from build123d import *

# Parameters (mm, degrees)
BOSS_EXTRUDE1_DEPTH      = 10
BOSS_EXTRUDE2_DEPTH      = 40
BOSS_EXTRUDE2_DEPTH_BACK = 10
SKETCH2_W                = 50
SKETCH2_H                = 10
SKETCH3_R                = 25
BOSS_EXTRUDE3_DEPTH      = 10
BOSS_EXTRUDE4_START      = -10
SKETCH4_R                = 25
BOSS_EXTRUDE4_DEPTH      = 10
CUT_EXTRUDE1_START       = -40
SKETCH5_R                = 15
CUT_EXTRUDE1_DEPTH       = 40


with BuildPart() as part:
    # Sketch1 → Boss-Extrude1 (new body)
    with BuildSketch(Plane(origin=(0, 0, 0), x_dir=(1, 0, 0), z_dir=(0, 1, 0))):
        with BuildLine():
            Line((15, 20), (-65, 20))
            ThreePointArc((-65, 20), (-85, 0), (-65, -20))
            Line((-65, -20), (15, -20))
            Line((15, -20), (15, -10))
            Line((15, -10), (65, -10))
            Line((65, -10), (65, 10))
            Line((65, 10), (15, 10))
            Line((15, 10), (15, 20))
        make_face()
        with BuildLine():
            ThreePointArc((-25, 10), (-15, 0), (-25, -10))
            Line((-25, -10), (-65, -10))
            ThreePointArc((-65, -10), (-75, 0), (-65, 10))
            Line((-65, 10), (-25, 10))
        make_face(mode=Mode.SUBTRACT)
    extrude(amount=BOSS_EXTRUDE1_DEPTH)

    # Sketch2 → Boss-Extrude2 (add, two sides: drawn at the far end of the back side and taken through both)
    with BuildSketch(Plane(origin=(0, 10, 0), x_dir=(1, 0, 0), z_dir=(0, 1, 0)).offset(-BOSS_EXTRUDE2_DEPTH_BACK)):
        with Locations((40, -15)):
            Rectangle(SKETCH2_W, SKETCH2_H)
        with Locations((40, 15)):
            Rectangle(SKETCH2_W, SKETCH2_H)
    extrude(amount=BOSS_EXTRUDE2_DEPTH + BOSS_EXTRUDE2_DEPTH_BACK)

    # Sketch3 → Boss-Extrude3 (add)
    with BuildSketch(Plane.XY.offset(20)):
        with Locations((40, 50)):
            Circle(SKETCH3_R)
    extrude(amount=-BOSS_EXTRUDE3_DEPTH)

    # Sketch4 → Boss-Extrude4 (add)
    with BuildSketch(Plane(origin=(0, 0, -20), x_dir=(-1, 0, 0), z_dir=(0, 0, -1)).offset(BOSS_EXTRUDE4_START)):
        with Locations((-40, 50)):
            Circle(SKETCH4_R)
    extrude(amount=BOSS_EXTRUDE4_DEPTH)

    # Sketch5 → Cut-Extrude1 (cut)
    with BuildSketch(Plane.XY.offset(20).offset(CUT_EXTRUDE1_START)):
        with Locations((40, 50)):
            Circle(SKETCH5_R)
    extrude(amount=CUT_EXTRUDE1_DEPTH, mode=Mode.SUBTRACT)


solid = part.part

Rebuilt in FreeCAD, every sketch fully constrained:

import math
import FreeCAD as App
import Part
import Sketcher
Q = App.Units.Quantity

doc = App.newDocument("Part")
body = doc.addObject("PartDesign::Body", "Body")

# Sketch on XZ plane
sketch1 = body.newObject("Sketcher::SketchObject", "Sketch")
sketch1.AttachmentSupport = (doc.getObject("XZ_Plane"), [""])
sketch1.MapMode = "FlatFace"
sketch1.addGeometry([
    Part.LineSegment(App.Vector(15, -20, 0), App.Vector(-65, -20, 0)),  # 0
    Part.ArcOfCircle(Part.Circle(App.Vector(-65, 0, 0), App.Vector(0, 0, 1), 20), math.radians(90), math.radians(270)),  # 1
    Part.LineSegment(App.Vector(-65, 20, 0), App.Vector(15, 20, 0)),  # 2
    Part.LineSegment(App.Vector(15, 20, 0), App.Vector(15, 10, 0)),  # 3
    Part.LineSegment(App.Vector(15, 10, 0), App.Vector(65, 10, 0)),  # 4
    Part.LineSegment(App.Vector(65, 10, 0), App.Vector(65, -10, 0)),  # 5
    Part.LineSegment(App.Vector(65, -10, 0), App.Vector(15, -10, 0)),  # 6
    Part.LineSegment(App.Vector(15, -10, 0), App.Vector(15, -20, 0)),  # 7
    Part.LineSegment(App.Vector(-65, -10, 0), App.Vector(-25, -10, 0)),  # 8
    Part.ArcOfCircle(Part.Circle(App.Vector(-25, 0, 0), App.Vector(0, 0, 1), 10), math.radians(-90), math.radians(90)),  # 9
    Part.LineSegment(App.Vector(-25, 10, 0), App.Vector(-65, 10, 0)),  # 10
    Part.ArcOfCircle(Part.Circle(App.Vector(-65, 0, 0), App.Vector(0, 0, 1), 10), math.radians(90), math.radians(270)),  # 11
], False)
sketch1.addConstraint([
    Sketcher.Constraint("Tangent", 0, 2, 1, 2),
    Sketcher.Constraint("Tangent", 1, 1, 2, 1),
    Sketcher.Constraint("Coincident", 2, 2, 3, 1),
    Sketcher.Constraint("Coincident", 3, 2, 4, 1),
    Sketcher.Constraint("Coincident", 4, 2, 5, 1),
    Sketcher.Constraint("Coincident", 5, 2, 6, 1),
    Sketcher.Constraint("Coincident", 6, 2, 7, 1),
    Sketcher.Constraint("Coincident", 7, 2, 0, 1),
    Sketcher.Constraint("Tangent", 8, 2, 9, 1),
    Sketcher.Constraint("Tangent", 9, 2, 10, 1),
    Sketcher.Constraint("Tangent", 10, 2, 11, 1),
    Sketcher.Constraint("Tangent", 11, 2, 8, 1),
    Sketcher.Constraint("Horizontal", 0),
    Sketcher.Constraint("Horizontal", 2),
    Sketcher.Constraint("Vertical", 3),
    Sketcher.Constraint("Horizontal", 4),
    Sketcher.Constraint("Vertical", 5),
    Sketcher.Constraint("Horizontal", 6),
    Sketcher.Constraint("Vertical", 7),
    Sketcher.Constraint("Horizontal", 8),
    Sketcher.Constraint("Horizontal", 10),
    Sketcher.Constraint("Coincident", 11, 3, 1, 3),
    Sketcher.Constraint("Symmetric", 5, 2, 10, 2, -1, 1),
    Sketcher.Constraint("Symmetric", 3, 2, 6, 2, -1),
    Sketcher.Constraint("PointOnObject", 1, 3, -1),
    Sketcher.Constraint("Radius", 1, Q("20 mm")),
    Sketcher.Constraint("Radius", 9, Q("10 mm")),
    Sketcher.Constraint("DistanceX", 0, 2, 0, 1, Q("80 mm")),
    Sketcher.Constraint("DistanceX", 4, 1, 4, 2, Q("50 mm")),
    Sketcher.Constraint("DistanceX", 8, 1, 8, 2, Q("40 mm")),
])
pad1 = body.newObject("PartDesign::Pad", "Pad")
pad1.Profile = sketch1
pad1.Length = 10
pad1.Reversed = True

# Sketch on XZ plane
sketch2 = body.newObject("Sketcher::SketchObject", "Sketch001")
sketch2.AttachmentSupport = (doc.getObject("XZ_Plane"), [""])
sketch2.MapMode = "FlatFace"
sketch2.AttachmentOffset = App.Placement(App.Vector(0, 0, -10), App.Rotation())
sketch2.addGeometry([
    Part.LineSegment(App.Vector(15, 10, 0), App.Vector(15, 20, 0)),  # 0
    Part.LineSegment(App.Vector(15, 20, 0), App.Vector(65, 20, 0)),  # 1
    Part.LineSegment(App.Vector(65, 20, 0), App.Vector(65, 10, 0)),  # 2
    Part.LineSegment(App.Vector(65, 10, 0), App.Vector(15, 10, 0)),  # 3
    Part.LineSegment(App.Vector(15, -20, 0), App.Vector(15, -10, 0)),  # 4
    Part.LineSegment(App.Vector(15, -10, 0), App.Vector(65, -10, 0)),  # 5
    Part.LineSegment(App.Vector(65, -10, 0), App.Vector(65, -20, 0)),  # 6
    Part.LineSegment(App.Vector(65, -20, 0), App.Vector(15, -20, 0)),  # 7
], False)
sketch2.addConstraint([
    Sketcher.Constraint("Coincident", 0, 2, 1, 1),
    Sketcher.Constraint("Coincident", 1, 2, 2, 1),
    Sketcher.Constraint("Coincident", 2, 2, 3, 1),
    Sketcher.Constraint("Coincident", 3, 2, 0, 1),
    Sketcher.Constraint("Coincident", 4, 2, 5, 1),
    Sketcher.Constraint("Coincident", 5, 2, 6, 1),
    Sketcher.Constraint("Coincident", 6, 2, 7, 1),
    Sketcher.Constraint("Coincident", 7, 2, 4, 1),
    Sketcher.Constraint("Vertical", 0),
    Sketcher.Constraint("Horizontal", 1),
    Sketcher.Constraint("Vertical", 2),
    Sketcher.Constraint("Horizontal", 3),
    Sketcher.Constraint("Vertical", 4),
    Sketcher.Constraint("Horizontal", 5),
    Sketcher.Constraint("Vertical", 6),
    Sketcher.Constraint("Horizontal", 7),
    Sketcher.Constraint("Symmetric", 3, 2, 4, 2, -1),
    Sketcher.Constraint("Symmetric", 1, 2, 6, 2, -1),
    Sketcher.Constraint("DistanceX", 1, 1, 1, 2, Q("50 mm")),
    Sketcher.Constraint("DistanceY", 0, 1, 0, 2, Q("10 mm")),
    Sketcher.Constraint("DistanceX", -1, 1, 0, 2, Q("15 mm")),
    Sketcher.Constraint("DistanceY", -1, 1, 0, 2, Q("20 mm")),
])
pad2 = body.newObject("PartDesign::Pad", "Pad001")
pad2.Profile = sketch2
pad2.Type = "TwoLengths"
pad2.Length = 40
pad2.Length2 = 10
pad2.Reversed = True

# Sketch on XY plane
sketch3 = body.newObject("Sketcher::SketchObject", "Sketch002")
sketch3.AttachmentSupport = (doc.getObject("XY_Plane"), [""])
sketch3.MapMode = "FlatFace"
sketch3.AttachmentOffset = App.Placement(App.Vector(0, 0, 20), App.Rotation())
sketch3.addGeometry(Part.Circle(App.Vector(40, 50, 0), App.Vector(0, 0, 1), 25), False)
sketch3.addConstraint([
    Sketcher.Constraint("Diameter", 0, Q("50 mm")),
    Sketcher.Constraint("DistanceX", -1, 1, 0, 3, Q("40 mm")),
    Sketcher.Constraint("DistanceY", -1, 1, 0, 3, Q("50 mm")),
])
pad3 = body.newObject("PartDesign::Pad", "Pad002")
pad3.Profile = sketch3
pad3.Length = 10
pad3.Reversed = True

# Sketch on XY plane
sketch4 = body.newObject("Sketcher::SketchObject", "Sketch003")
sketch4.AttachmentSupport = (doc.getObject("XY_Plane"), [""])
sketch4.MapMode = "FlatFace"
sketch4.AttachmentOffset = App.Placement(App.Vector(0, 0, -10), App.Rotation())
sketch4.addGeometry(Part.Circle(App.Vector(40, 50, 0), App.Vector(0, 0, 1), 25), False)
sketch4.addConstraint([
    Sketcher.Constraint("Diameter", 0, Q("50 mm")),
    Sketcher.Constraint("DistanceX", -1, 1, 0, 3, Q("40 mm")),
    Sketcher.Constraint("DistanceY", -1, 1, 0, 3, Q("50 mm")),
])
pad4 = body.newObject("PartDesign::Pad", "Pad003")
pad4.Profile = sketch4
pad4.Length = 10
pad4.Reversed = True

# Sketch on XY plane
sketch5 = body.newObject("Sketcher::SketchObject", "Sketch004")
sketch5.AttachmentSupport = (doc.getObject("XY_Plane"), [""])
sketch5.MapMode = "FlatFace"
sketch5.AttachmentOffset = App.Placement(App.Vector(0, 0, -20), App.Rotation())
sketch5.addGeometry(Part.Circle(App.Vector(40, 50, 0), App.Vector(0, 0, 1), 15), False)
sketch5.addConstraint([
    Sketcher.Constraint("Diameter", 0, Q("30 mm")),
    Sketcher.Constraint("DistanceX", -1, 1, 0, 3, Q("40 mm")),
    Sketcher.Constraint("DistanceY", -1, 1, 0, 3, Q("50 mm")),
])
pocket1 = body.newObject("PartDesign::Pocket", "Pocket")
pocket1.Profile = sketch5
pocket1.Length = 40
pocket1.Reversed = True

doc.recompute()
